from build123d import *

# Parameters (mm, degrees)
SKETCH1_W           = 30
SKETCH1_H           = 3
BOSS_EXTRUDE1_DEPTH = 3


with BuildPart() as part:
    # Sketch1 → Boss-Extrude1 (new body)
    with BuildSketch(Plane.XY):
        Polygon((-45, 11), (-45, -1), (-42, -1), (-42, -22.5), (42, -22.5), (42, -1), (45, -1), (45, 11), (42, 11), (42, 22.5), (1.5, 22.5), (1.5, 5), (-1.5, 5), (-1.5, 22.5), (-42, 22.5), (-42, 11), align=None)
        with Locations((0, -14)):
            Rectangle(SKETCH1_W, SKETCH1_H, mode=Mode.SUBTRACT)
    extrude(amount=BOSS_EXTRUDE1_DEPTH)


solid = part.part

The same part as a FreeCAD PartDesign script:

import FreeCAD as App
import Part
import Sketcher
from FreeCAD import Vector


def add_polygon(sketch, points):
    """Adds a closed chain of lines whose ends are joined by coincident constraints."""
    first, n = sketch.GeometryCount, len(points)
    for a, b in zip(points, points[1:] + points[:1]):
        sketch.addGeometry(Part.LineSegment(App.Vector(*a, 0), App.Vector(*b, 0)), False)
    for i in range(n):
        sketch.addConstraint(Sketcher.Constraint("Coincident", first + i, 2, first + (i + 1) % n, 1))

doc = App.newDocument("Part")
body = doc.addObject("PartDesign::Body", "Body")

sketch1 = body.newObject("Sketcher::SketchObject", "Sketch")
sketch1.AttachmentSupport = (doc.getObject("XY_Plane"), [""])
sketch1.MapMode = "FlatFace"
add_polygon(sketch1, [(-45, 11), (-45, -1), (-42, -1), (-42, -22.5), (42, -22.5), (42, -1), (45, -1), (45, 11), (42, 11), (42, 22.5), (1.5, 22.5), (1.5, 5), (-1.5, 5), (-1.5, 22.5), (-42, 22.5), (-42, 11)])
add_polygon(sketch1, [(15, -15.5), (-15, -15.5), (-15, -12.5), (15, -12.5)])
sketch1.addConstraint([
    Sketcher.Constraint("Vertical", 0),
    Sketcher.Constraint("Horizontal", 1),
    Sketcher.Constraint("Vertical", 2),
    Sketcher.Constraint("Horizontal", 3),
    Sketcher.Constraint("Vertical", 4),
    Sketcher.Constraint("Horizontal", 5),
    Sketcher.Constraint("Vertical", 6),
    Sketcher.Constraint("Horizontal", 7),
    Sketcher.Constraint("Vertical", 8),
    Sketcher.Constraint("Horizontal", 9),
    Sketcher.Constraint("Vertical", 10),
    Sketcher.Constraint("Horizontal", 11),
    Sketcher.Constraint("Vertical", 12),
    Sketcher.Constraint("Horizontal", 13),
    Sketcher.Constraint("Vertical", 14),
    Sketcher.Constraint("Horizontal", 15),
    Sketcher.Constraint("Horizontal", 16),
    Sketcher.Constraint("Vertical", 17),
    Sketcher.Constraint("Horizontal", 18),
    Sketcher.Constraint("Vertical", 19),
    Sketcher.Constraint("Symmetric", 2, 2, 8, 2, -1, 1),
    Sketcher.Constraint("Symmetric", 3, 2, 13, 2, -1, 1),
    Sketcher.Constraint("Symmetric", 1, 2, 4, 2, -2),
    Sketcher.Constraint("Symmetric", 6, 2, 15, 2, -2),
    Sketcher.Constraint("Equal", 7, 11),
    Sketcher.Constraint("Equal", 9, 13),
    Sketcher.Constraint("Equal", 15, 17),
    Sketcher.Constraint("DistanceX", 1, 1, 1, 2, 3.0),
    Sketcher.Constraint("DistanceX", 3, 1, 3, 2, 84.0),
    Sketcher.Constraint("DistanceX", 16, 2, 16, 1, 30.0),
    Sketcher.Constraint("DistanceY", 0, 2, 0, 1, 12.0),
    Sketcher.Constraint("DistanceY", 2, 2, 2, 1, 21.5),
    Sketcher.Constraint("DistanceY", 8, 1, 8, 2, 11.5),
    Sketcher.Constraint("DistanceY", 10, 2, 10, 1, 17.5),
    Sketcher.Constraint("DistanceX", 16, 2, -1, 1, 15.0),
    Sketcher.Constraint("DistanceY", 2, 2, 16, 2, 7.0),
])
pad1 = body.newObject("PartDesign::Pad", "Pad")
pad1.Profile = sketch1
pad1.Length = 3

doc.recompute()
